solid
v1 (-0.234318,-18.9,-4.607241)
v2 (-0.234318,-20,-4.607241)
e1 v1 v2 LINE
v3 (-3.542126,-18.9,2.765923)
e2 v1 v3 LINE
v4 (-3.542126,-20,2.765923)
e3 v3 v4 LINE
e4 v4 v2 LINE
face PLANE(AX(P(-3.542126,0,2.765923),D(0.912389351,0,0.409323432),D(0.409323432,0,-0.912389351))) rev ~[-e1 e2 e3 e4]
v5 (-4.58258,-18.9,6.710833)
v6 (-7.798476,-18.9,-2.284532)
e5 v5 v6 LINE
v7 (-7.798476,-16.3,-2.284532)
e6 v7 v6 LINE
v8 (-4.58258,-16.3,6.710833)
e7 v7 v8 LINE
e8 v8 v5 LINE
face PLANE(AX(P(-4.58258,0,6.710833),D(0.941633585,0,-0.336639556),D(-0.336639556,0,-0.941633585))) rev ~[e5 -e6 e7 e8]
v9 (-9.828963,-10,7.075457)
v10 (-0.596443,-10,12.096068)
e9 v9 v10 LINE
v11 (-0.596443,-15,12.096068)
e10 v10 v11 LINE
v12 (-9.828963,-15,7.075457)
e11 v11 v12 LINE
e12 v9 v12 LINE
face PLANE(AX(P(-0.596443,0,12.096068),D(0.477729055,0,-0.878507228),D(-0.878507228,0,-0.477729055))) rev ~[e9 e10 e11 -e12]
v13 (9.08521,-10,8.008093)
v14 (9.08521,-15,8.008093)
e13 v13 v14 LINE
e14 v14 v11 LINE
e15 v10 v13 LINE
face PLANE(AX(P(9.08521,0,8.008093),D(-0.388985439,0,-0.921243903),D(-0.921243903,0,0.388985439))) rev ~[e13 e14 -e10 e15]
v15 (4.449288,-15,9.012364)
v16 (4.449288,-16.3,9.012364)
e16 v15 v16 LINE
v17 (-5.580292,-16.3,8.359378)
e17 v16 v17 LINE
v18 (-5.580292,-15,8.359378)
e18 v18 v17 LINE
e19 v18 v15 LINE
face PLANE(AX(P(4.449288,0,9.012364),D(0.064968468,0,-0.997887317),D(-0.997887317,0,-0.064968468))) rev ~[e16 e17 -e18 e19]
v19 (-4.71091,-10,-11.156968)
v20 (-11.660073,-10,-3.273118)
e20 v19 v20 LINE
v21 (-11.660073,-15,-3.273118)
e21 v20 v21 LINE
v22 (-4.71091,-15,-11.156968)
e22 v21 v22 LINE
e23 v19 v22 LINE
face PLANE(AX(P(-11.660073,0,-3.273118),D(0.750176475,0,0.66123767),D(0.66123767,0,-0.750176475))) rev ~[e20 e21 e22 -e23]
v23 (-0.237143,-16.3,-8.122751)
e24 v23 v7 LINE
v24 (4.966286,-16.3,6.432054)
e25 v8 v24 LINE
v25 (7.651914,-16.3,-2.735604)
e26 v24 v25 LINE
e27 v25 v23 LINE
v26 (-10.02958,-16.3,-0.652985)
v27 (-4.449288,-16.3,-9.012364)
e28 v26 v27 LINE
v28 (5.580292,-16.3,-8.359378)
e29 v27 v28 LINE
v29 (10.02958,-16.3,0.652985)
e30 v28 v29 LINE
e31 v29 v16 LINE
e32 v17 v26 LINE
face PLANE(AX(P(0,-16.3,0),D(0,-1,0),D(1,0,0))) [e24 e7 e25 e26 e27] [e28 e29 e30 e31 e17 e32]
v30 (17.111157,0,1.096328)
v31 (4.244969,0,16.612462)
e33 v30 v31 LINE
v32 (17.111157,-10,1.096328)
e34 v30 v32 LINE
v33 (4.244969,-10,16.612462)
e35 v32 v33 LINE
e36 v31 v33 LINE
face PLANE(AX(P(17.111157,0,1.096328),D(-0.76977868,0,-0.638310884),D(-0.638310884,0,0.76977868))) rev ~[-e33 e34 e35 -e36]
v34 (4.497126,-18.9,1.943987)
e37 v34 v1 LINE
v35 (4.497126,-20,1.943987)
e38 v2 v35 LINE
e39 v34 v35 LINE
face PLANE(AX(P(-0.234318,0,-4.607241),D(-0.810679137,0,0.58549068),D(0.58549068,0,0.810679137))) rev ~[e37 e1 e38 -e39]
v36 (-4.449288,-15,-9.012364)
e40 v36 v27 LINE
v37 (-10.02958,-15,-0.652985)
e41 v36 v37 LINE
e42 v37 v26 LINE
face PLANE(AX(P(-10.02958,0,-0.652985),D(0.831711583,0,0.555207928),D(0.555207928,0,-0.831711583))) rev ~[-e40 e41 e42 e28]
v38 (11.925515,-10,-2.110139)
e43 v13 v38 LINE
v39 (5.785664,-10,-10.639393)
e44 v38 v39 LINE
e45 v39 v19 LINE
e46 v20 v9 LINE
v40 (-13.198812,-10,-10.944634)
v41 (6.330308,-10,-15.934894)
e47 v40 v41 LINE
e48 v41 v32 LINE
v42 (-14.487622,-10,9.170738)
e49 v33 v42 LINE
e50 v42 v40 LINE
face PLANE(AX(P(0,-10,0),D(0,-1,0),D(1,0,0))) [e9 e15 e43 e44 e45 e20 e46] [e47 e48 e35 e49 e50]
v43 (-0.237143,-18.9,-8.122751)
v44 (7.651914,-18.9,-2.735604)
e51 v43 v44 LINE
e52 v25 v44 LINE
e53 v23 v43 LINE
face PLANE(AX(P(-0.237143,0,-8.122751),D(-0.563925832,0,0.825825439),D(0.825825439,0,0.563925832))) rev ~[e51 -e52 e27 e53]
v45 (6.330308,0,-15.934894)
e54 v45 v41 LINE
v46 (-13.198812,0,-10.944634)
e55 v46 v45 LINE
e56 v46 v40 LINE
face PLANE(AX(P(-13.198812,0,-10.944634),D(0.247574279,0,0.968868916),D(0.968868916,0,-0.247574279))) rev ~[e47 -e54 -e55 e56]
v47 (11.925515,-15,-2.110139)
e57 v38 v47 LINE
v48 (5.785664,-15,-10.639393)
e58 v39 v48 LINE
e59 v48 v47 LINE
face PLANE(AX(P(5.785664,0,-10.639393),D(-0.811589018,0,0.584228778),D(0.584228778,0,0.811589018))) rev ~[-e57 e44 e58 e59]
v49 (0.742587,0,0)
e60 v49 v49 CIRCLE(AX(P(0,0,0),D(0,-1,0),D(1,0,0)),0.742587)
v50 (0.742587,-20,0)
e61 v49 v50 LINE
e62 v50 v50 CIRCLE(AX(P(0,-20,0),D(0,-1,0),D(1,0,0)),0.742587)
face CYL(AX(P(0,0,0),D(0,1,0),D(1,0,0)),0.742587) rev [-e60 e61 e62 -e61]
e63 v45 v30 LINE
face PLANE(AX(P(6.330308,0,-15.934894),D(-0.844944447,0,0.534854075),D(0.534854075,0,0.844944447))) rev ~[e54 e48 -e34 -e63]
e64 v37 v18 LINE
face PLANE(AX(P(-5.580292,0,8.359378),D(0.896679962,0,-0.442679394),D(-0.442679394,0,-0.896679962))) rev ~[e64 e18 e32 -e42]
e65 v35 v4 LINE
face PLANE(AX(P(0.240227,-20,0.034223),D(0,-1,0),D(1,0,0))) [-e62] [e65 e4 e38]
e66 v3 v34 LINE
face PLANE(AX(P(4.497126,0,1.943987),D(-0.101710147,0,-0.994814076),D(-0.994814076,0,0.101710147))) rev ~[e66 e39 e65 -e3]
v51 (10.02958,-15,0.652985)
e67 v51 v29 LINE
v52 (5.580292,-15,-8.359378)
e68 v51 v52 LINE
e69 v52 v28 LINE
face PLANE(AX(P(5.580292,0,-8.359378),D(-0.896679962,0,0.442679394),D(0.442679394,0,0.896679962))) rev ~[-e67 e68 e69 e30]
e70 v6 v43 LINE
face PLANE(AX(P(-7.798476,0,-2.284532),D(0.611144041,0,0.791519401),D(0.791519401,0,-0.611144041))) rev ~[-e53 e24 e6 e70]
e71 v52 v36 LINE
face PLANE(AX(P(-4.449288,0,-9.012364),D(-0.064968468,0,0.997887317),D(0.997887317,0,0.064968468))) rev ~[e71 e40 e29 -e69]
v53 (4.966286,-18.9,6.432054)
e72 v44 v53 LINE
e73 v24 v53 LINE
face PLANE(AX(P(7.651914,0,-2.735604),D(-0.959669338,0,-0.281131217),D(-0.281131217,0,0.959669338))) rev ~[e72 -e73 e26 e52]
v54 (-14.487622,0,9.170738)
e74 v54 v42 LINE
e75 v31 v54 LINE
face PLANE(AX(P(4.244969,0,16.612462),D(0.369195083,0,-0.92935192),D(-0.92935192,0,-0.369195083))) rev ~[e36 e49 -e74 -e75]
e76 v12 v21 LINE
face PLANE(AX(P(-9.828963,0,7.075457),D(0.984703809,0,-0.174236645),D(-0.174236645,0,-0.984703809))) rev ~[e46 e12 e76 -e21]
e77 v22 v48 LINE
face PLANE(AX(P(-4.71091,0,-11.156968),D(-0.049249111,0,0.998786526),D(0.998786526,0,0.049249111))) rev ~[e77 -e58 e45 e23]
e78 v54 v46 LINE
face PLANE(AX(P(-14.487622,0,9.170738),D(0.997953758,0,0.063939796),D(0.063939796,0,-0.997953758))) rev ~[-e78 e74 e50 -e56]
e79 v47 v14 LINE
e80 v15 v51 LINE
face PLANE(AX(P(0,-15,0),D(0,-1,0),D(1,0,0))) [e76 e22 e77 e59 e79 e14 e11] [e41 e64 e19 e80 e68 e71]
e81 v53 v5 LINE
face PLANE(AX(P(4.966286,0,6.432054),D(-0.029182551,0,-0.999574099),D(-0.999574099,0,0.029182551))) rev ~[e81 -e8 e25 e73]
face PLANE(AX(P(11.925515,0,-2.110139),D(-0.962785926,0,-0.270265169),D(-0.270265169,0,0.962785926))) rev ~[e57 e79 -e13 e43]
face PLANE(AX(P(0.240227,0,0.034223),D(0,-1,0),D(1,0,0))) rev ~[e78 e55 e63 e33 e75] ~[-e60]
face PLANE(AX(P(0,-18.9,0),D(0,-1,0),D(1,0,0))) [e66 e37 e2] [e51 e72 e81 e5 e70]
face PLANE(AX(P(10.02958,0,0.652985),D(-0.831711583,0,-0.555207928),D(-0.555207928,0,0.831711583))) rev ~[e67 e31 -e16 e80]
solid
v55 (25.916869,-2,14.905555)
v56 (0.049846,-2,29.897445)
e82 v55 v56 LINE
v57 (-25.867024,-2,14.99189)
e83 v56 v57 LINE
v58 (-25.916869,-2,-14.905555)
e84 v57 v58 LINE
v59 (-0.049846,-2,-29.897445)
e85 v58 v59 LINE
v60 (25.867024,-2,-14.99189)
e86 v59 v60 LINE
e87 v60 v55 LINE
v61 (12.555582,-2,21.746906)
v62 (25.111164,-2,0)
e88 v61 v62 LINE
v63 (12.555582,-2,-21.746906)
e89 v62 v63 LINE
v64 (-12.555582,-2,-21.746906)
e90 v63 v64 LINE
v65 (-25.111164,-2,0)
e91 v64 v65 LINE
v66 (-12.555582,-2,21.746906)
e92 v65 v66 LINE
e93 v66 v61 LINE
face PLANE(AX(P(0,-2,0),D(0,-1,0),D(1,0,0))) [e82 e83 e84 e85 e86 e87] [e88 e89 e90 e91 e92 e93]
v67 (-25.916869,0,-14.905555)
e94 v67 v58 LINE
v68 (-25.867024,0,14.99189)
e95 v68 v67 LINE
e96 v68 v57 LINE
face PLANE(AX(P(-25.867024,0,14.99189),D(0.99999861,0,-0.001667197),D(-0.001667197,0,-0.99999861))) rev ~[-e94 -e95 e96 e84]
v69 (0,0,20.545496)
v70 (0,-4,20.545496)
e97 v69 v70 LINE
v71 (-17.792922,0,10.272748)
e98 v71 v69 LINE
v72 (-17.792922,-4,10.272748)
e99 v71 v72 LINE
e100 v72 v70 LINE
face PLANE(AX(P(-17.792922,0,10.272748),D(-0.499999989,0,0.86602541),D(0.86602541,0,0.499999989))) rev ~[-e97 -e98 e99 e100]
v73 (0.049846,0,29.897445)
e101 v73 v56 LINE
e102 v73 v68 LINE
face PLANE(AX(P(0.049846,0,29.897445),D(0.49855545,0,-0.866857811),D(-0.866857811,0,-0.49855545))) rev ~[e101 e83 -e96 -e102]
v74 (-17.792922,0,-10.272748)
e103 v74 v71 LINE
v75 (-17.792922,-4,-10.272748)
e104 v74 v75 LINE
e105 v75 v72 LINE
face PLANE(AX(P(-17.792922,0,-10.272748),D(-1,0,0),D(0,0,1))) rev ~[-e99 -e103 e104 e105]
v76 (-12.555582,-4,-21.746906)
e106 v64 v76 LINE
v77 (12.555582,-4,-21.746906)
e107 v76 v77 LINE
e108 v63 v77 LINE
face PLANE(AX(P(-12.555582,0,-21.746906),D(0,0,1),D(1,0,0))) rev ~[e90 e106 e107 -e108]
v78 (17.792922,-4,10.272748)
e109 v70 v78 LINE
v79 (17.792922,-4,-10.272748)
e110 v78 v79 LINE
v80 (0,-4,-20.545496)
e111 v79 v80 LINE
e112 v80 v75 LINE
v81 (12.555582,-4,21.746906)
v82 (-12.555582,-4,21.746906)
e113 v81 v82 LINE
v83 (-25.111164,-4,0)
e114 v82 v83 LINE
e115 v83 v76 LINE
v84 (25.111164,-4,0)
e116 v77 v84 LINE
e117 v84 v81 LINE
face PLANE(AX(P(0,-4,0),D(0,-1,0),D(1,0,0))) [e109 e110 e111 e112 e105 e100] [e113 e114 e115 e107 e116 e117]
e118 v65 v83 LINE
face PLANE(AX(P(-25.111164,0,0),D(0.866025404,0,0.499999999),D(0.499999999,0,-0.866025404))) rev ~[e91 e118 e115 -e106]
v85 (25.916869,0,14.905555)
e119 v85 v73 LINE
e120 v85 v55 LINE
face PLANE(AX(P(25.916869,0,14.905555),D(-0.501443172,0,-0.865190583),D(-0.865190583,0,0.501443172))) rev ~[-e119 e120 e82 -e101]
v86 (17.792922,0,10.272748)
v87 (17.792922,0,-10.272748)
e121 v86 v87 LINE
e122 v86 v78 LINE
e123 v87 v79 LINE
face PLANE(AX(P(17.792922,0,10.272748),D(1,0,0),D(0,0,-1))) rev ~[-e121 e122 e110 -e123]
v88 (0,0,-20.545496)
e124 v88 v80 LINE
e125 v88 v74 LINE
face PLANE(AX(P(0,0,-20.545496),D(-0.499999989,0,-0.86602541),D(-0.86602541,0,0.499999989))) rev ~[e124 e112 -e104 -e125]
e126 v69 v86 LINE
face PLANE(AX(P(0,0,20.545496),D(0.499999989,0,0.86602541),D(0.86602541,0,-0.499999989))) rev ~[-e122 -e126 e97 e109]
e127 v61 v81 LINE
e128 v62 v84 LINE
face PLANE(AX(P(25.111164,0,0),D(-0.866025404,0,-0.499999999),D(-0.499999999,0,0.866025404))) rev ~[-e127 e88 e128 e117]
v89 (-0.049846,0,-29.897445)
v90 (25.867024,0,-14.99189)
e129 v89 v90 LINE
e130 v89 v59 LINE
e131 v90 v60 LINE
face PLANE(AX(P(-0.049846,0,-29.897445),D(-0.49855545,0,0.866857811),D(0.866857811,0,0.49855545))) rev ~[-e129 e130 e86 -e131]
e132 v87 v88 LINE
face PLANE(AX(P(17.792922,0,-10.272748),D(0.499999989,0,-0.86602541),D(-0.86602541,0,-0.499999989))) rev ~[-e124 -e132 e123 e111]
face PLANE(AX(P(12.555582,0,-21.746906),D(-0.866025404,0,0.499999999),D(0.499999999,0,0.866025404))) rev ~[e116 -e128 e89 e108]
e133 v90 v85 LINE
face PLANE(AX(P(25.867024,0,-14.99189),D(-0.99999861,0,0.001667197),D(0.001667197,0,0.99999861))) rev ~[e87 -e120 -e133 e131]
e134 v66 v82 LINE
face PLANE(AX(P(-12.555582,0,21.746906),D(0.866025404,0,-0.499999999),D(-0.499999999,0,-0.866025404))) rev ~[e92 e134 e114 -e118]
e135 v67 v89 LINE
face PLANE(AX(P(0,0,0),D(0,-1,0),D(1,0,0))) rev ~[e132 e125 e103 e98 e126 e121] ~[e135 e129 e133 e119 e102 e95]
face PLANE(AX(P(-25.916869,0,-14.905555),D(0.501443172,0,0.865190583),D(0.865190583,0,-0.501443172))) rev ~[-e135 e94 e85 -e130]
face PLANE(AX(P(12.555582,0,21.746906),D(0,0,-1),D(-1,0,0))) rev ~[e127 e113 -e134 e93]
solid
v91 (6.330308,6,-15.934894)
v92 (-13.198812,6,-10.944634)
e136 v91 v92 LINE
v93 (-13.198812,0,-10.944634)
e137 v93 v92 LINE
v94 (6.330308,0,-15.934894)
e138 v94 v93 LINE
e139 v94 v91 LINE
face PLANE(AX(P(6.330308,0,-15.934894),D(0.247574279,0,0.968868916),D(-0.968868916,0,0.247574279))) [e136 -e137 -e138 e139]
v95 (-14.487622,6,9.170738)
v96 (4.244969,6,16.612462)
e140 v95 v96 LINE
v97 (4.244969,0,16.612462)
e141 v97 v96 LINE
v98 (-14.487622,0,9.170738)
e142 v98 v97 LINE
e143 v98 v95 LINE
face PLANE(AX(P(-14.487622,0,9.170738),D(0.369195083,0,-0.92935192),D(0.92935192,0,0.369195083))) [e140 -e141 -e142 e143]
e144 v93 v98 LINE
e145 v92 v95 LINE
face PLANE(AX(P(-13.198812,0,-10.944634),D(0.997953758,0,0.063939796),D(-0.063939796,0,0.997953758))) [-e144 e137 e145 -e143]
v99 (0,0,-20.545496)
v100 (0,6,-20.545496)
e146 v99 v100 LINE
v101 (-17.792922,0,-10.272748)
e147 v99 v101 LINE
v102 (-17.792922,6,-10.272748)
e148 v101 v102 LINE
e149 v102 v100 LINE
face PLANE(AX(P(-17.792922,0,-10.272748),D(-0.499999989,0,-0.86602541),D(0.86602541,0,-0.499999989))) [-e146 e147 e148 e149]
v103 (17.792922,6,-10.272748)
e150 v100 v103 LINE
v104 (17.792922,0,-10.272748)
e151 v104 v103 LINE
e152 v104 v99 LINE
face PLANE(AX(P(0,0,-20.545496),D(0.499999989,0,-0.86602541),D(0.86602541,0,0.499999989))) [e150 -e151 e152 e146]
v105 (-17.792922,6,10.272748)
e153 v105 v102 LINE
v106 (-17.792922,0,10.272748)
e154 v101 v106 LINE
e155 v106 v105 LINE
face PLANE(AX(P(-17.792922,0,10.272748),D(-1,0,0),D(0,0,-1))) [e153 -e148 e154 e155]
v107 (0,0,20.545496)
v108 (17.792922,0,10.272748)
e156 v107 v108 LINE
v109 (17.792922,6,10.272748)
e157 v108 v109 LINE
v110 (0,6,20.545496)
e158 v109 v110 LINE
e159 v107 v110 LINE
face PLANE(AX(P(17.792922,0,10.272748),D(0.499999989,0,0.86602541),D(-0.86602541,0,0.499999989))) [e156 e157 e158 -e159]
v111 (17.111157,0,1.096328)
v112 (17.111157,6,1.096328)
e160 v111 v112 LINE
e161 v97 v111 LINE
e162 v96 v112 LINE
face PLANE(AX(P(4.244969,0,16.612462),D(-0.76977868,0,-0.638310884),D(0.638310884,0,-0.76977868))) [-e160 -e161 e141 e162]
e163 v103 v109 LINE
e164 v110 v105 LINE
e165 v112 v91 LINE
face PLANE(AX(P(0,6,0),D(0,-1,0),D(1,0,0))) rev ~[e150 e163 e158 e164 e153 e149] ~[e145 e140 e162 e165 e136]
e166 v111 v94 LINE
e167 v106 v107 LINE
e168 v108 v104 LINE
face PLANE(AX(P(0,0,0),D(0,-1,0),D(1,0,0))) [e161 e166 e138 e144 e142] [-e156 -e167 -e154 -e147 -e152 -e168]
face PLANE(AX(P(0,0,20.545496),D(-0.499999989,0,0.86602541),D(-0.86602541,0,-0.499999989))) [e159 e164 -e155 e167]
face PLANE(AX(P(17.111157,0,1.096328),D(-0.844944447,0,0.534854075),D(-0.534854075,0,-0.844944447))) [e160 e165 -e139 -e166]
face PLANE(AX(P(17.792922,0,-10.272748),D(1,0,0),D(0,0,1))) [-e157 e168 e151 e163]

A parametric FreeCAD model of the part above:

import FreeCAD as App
import Part
import Sketcher
from FreeCAD import Vector
Q = App.Units.Quantity

doc = App.newDocument("Part")
body = doc.addObject("PartDesign::Body", "Body")
body.AllowCompound = True

# Sketch on XZ plane
sketch1 = body.newObject("Sketcher::SketchObject", "Sketch")
sketch1.AttachmentSupport = (doc.getObject("XZ_Plane"), [""])
sketch1.MapMode = "FlatFace"
sketch1.addGeometry(Part.LineSegment(Vector(-13, -22, 0), Vector(13, -22, 0)), False)
sketch1.addGeometry(Part.LineSegment(Vector(13, -22, 0), Vector(25, 0, 0)), False)
sketch1.addGeometry(Part.LineSegment(Vector(25, 0, 0), Vector(13, 22, 0)), False)
sketch1.addGeometry(Part.LineSegment(Vector(13, 22, 0), Vector(-13, 22, 0)), False)
sketch1.addGeometry(Part.LineSegment(Vector(-13, 22, 0), Vector(-25, 0, 0)), False)
sketch1.addGeometry(Part.LineSegment(Vector(-25, 0, 0), Vector(-13, -22, 0)), False)
sketch1.addGeometry(Part.LineSegment(Vector(-18, 10, 0), Vector(0, 21, 0)), False)
sketch1.addGeometry(Part.LineSegment(Vector(0, 21, 0), Vector(18, 10, 0)), False)
sketch1.addGeometry(Part.LineSegment(Vector(18, 10, 0), Vector(18, -10, 0)), False)
sketch1.addGeometry(Part.LineSegment(Vector(18, -10, 0), Vector(0, -21, 0)), False)
sketch1.addGeometry(Part.LineSegment(Vector(0, -21, 0), Vector(-18, -10, 0)), False)
sketch1.addGeometry(Part.LineSegment(Vector(-18, -10, 0), Vector(-18, 10, 0)), False)
sketch1.addConstraint(Sketcher.Constraint("Coincident", 0, 2, 1, 1))
sketch1.addConstraint(Sketcher.Constraint("Coincident", 1, 2, 2, 1))
sketch1.addConstraint(Sketcher.Constraint("Coincident", 2, 2, 3, 1))
sketch1.addConstraint(Sketcher.Constraint("Coincident", 3, 2, 4, 1))
sketch1.addConstraint(Sketcher.Constraint("Coincident", 4, 2, 5, 1))
sketch1.addConstraint(Sketcher.Constraint("Coincident", 5, 2, 0, 1))
sketch1.addConstraint(Sketcher.Constraint("Coincident", 6, 2, 7, 1))
sketch1.addConstraint(Sketcher.Constraint("Coincident", 7, 2, 8, 1))
sketch1.addConstraint(Sketcher.Constraint("Coincident", 8, 2, 9, 1))
sketch1.addConstraint(Sketcher.Constraint("Coincident", 9, 2, 10, 1))
sketch1.addConstraint(Sketcher.Constraint("Coincident", 10, 2, 11, 1))
sketch1.addConstraint(Sketcher.Constraint("Coincident", 11, 2, 6, 1))
sketch1.addConstraint(Sketcher.Constraint("Horizontal", 0))
sketch1.addConstraint(Sketcher.Constraint("Horizontal", 3))
sketch1.addConstraint(Sketcher.Constraint("Vertical", 8))
sketch1.addConstraint(Sketcher.Constraint("Vertical", 11))
sketch1.addConstraint(Sketcher.Constraint("Symmetric", 0, 2, 3, 2, -1, 1))
sketch1.addConstraint(Sketcher.Constraint("Symmetric", 1, 2, 4, 2, -1, 1))
sketch1.addConstraint(Sketcher.Constraint("Symmetric", 6, 2, 9, 2, -1, 1))
sketch1.addConstraint(Sketcher.Constraint("Symmetric", 7, 2, 10, 2, -1, 1))
sketch1.addConstraint(Sketcher.Constraint("PointOnObject", 1, 2, -1))
sketch1.addConstraint(Sketcher.Constraint("PointOnObject", 6, 2, -2))
sketch1.addConstraint(Sketcher.Constraint("Parallel", 2, 5))
sketch1.addConstraint(Sketcher.Constraint("Perpendicular", 5, 6))
sketch1.addConstraint(Sketcher.Constraint("Perpendicular", 4, 7))
sketch1.addConstraint(Sketcher.Constraint("Parallel", 6, 9))
sketch1.addConstraint(Sketcher.Constraint("Horizontal", 8, 2, 10, 2))
sketch1.addConstraint(Sketcher.Constraint("Angle", 1, Q("60 deg")))
sketch1.addConstraint(Sketcher.Constraint("DistanceY", 0, 2, 6, 2, Q("42.292402 mm")))
sketch1.addConstraint(Sketcher.Constraint("DistanceX", 0, 1, 0, 2, Q("25.111164 mm")))
sketch1.addConstraint(Sketcher.Constraint("DistanceY", 8, 2, 8, 1, Q("20.545496 mm")))
sketch1.addConstraint(Sketcher.Constraint("DistanceX", 0, 2, 1, 2, Q("12.555582 mm")))
pad1 = body.newObject("PartDesign::Pad", "Pad")
pad1.Profile = sketch1
pad1.Length = 4

# Sketch on XZ plane
sketch2 = body.newObject("Sketcher::SketchObject", "Sketch001")
sketch2.AttachmentSupport = (doc.getObject("XZ_Plane"), [""])
sketch2.MapMode = "FlatFace"
sketch2.addGeometry(Part.LineSegment(Vector(0, -30, 0), Vector(26, -15, 0)), False)
sketch2.addGeometry(Part.LineSegment(Vector(26, -15, 0), Vector(26, 15, 0)), False)
sketch2.addGeometry(Part.LineSegment(Vector(26, 15, 0), Vector(0, 30, 0)), False)
sketch2.addGeometry(Part.LineSegment(Vector(0, 30, 0), Vector(-26, 15, 0)), False)
sketch2.addGeometry(Part.LineSegment(Vector(-26, 15, 0), Vector(-26, -15, 0)), False)
sketch2.addGeometry(Part.LineSegment(Vector(-26, -15, 0), Vector(0, -30, 0)), False)
sketch2.addGeometry(Part.LineSegment(Vector(13, 22, 0), Vector(25, 0, 0)), False)
sketch2.addGeometry(Part.LineSegment(Vector(25, 0, 0), Vector(13, -22, 0)), False)
sketch2.addGeometry(Part.LineSegment(Vector(13, -22, 0), Vector(-13, -22, 0)), False)
sketch2.addGeometry(Part.LineSegment(Vector(-13, -22, 0), Vector(-25, 0, 0)), False)
sketch2.addGeometry(Part.LineSegment(Vector(-25, 0, 0), Vector(-13, 22, 0)), False)
sketch2.addGeometry(Part.LineSegment(Vector(-13, 22, 0), Vector(13, 22, 0)), False)
sketch2.addConstraint(Sketcher.Constraint("Coincident", 0, 2, 1, 1))
sketch2.addConstraint(Sketcher.Constraint("Coincident", 1, 2, 2, 1))
sketch2.addConstraint(Sketcher.Constraint("Coincident", 2, 2, 3, 1))
sketch2.addConstraint(Sketcher.Constraint("Coincident", 3, 2, 4, 1))
sketch2.addConstraint(Sketcher.Constraint("Coincident", 4, 2, 5, 1))
sketch2.addConstraint(Sketcher.Constraint("Coincident", 5, 2, 0, 1))
sketch2.addConstraint(Sketcher.Constraint("Coincident", 6, 2, 7, 1))
sketch2.addConstraint(Sketcher.Constraint("Coincident", 7, 2, 8, 1))
sketch2.addConstraint(Sketcher.Constraint("Coincident", 8, 2, 9, 1))
sketch2.addConstraint(Sketcher.Constraint("Coincident", 9, 2, 10, 1))
sketch2.addConstraint(Sketcher.Constraint("Coincident", 10, 2, 11, 1))
sketch2.addConstraint(Sketcher.Constraint("Coincident", 11, 2, 6, 1))
sketch2.addConstraint(Sketcher.Constraint("Horizontal", 8))
sketch2.addConstraint(Sketcher.Constraint("Horizontal", 11))
sketch2.addConstraint(Sketcher.Constraint("Symmetric", 0, 2, 3, 2, -1, 1))
sketch2.addConstraint(Sketcher.Constraint("Symmetric", 1, 2, 4, 2, -1, 1))
sketch2.addConstraint(Sketcher.Constraint("Symmetric", 2, 2, 5, 2, -1, 1))
sketch2.addConstraint(Sketcher.Constraint("Symmetric", 6, 2, 9, 2, -1, 1))
sketch2.addConstraint(Sketcher.Constraint("Symmetric", 7, 2, 10, 2, -1, 1))
sketch2.addConstraint(Sketcher.Constraint("PointOnObject", 6, 2, -1))
sketch2.addConstraint(Sketcher.Constraint("Parallel", 6, 9))
sketch2.addConstraint(Sketcher.Constraint("Vertical", 8, 2, 10, 2))
sketch2.addConstraint(Sketcher.Constraint("Equal", 0, 1))
sketch2.addConstraint(Sketcher.Constraint("Equal", 1, 2))
sketch2.addConstraint(Sketcher.Constraint("Angle", 6, Q("-60 deg")))
sketch2.addConstraint(Sketcher.Constraint("DistanceY", 4, 2, 2, 2, Q("44.803 mm")))
sketch2.addConstraint(Sketcher.Constraint("DistanceX", 8, 2, 8, 1, Q("25.111164 mm")))
sketch2.addConstraint(Sketcher.Constraint("DistanceY", 0, 2, -1, 1, Q("14.99189 mm")))
sketch2.addConstraint(Sketcher.Constraint("DistanceX", -1, 1, 1, 2, Q("25.916869 mm")))
sketch2.addConstraint(Sketcher.Constraint("DistanceY", 1, 2, 2, 2, Q("14.99189 mm")))
sketch2.addConstraint(Sketcher.Constraint("DistanceX", 6, 2, 0, 2, Q("0.75586 mm")))
pad2 = body.newObject("PartDesign::Pad", "Pad001")
pad2.Profile = sketch2
pad2.Length = 2

# Sketch on XZ plane
sketch3 = body.newObject("Sketcher::SketchObject", "Sketch002")
sketch3.AttachmentSupport = (doc.getObject("XZ_Plane"), [""])
sketch3.MapMode = "FlatFace"
sketch3.addGeometry(Part.LineSegment(Vector(18, -10, 0), Vector(18, 10, 0)), False)
sketch3.addGeometry(Part.LineSegment(Vector(18, 10, 0), Vector(0, 21, 0)), False)
sketch3.addGeometry(Part.LineSegment(Vector(0, 21, 0), Vector(-18, 10, 0)), False)
sketch3.addGeometry(Part.LineSegment(Vector(-18, 10, 0), Vector(-18, -10, 0)), False)
sketch3.addGeometry(Part.LineSegment(Vector(-18, -10, 0), Vector(0, -21, 0)), False)
sketch3.addGeometry(Part.LineSegment(Vector(0, -21, 0), Vector(18, -10, 0)), False)
sketch3.addGeometry(Part.LineSegment(Vector(-14, 9, 0), Vector(4, 17, 0)), False)
sketch3.addGeometry(Part.LineSegment(Vector(4, 17, 0), Vector(17, 1, 0)), False)
sketch3.addGeometry(Part.LineSegment(Vector(17, 1, 0), Vector(6, -16, 0)), False)
sketch3.addGeometry(Part.LineSegment(Vector(6, -16, 0), Vector(-13, -11, 0)), False)
sketch3.addGeometry(Part.LineSegment(Vector(-13, -11, 0), Vector(-14, 9, 0)), False)
sketch3.addConstraint(Sketcher.Constraint("Coincident", 0, 2, 1, 1))
sketch3.addConstraint(Sketcher.Constraint("Coincident", 1, 2, 2, 1))
sketch3.addConstraint(Sketcher.Constraint("Coincident", 2, 2, 3, 1))
sketch3.addConstraint(Sketcher.Constraint("Coincident", 3, 2, 4, 1))
sketch3.addConstraint(Sketcher.Constraint("Coincident", 4, 2, 5, 1))
sketch3.addConstraint(Sketcher.Constraint("Coincident", 5, 2, 0, 1))
sketch3.addConstraint(Sketcher.Constraint("Coincident", 6, 2, 7, 1))
sketch3.addConstraint(Sketcher.Constraint("Coincident", 7, 2, 8, 1))
sketch3.addConstraint(Sketcher.Constraint("Coincident", 8, 2, 9, 1))
sketch3.addConstraint(Sketcher.Constraint("Coincident", 9, 2, 10, 1))
sketch3.addConstraint(Sketcher.Constraint("Coincident", 10, 2, 6, 1))
sketch3.addConstraint(Sketcher.Constraint("Vertical", 0))
sketch3.addConstraint(Sketcher.Constraint("Vertical", 3))
sketch3.addConstraint(Sketcher.Constraint("Symmetric", 0, 2, 3, 2, -1, 1))
sketch3.addConstraint(Sketcher.Constraint("Symmetric", 1, 2, 4, 2, -1, 1))
sketch3.addConstraint(Sketcher.Constraint("PointOnObject", 1, 2, -2))
sketch3.addConstraint(Sketcher.Constraint("Parallel", 2, 5))
sketch3.addConstraint(Sketcher.Constraint("Horizontal", 0, 2, 2, 2))
sketch3.addConstraint(Sketcher.Constraint("Equal", 6, 7))
sketch3.addConstraint(Sketcher.Constraint("Equal", 7, 8))
sketch3.addConstraint(Sketcher.Constraint("Equal", 8, 9))
sketch3.addConstraint(Sketcher.Constraint("Equal", 9, 10))
sketch3.addConstraint(Sketcher.Constraint("Angle", 1, Q("150.000001 deg")))
sketch3.addConstraint(Sketcher.Constraint("DistanceX", 2, 2, 10, 2, Q("3.3053 mm")))
sketch3.addConstraint(Sketcher.Constraint("DistanceY", 0, 1, 0, 2, Q("20.545496 mm")))
sketch3.addConstraint(Sketcher.Constraint("DistanceX", -1, 1, 6, 2, Q("4.244969 mm")))
sketch3.addConstraint(Sketcher.Constraint("DistanceX", 2, 2, 6, 2, Q("22.037891 mm")))
sketch3.addConstraint(Sketcher.Constraint("DistanceY", 5, 2, 6, 2, Q("26.88521 mm")))
sketch3.addConstraint(Sketcher.Constraint("DistanceY", 7, 2, 0, 2, Q("9.17642 mm")))
sketch3.addConstraint(Sketcher.Constraint("DistanceX", 8, 2, 7, 2, Q("10.780849 mm")))
sketch3.addConstraint(Sketcher.Constraint("DistanceY", 8, 2, 7, 2, Q("17.031222 mm")))
pad3 = body.newObject("PartDesign::Pad", "Pad002")
pad3.Profile = sketch3
pad3.Length = 6
pad3.Reversed = True
body2 = doc.addObject("PartDesign::Body", "Body001")

# Sketch on XZ plane
sketch4 = body2.newObject("Sketcher::SketchObject", "Sketch003")
sketch4.AttachmentSupport = (doc.getObject("XZ_Plane001"), [""])
sketch4.MapMode = "FlatFace"
sketch4.addGeometry(Part.LineSegment(Vector(6, -16, 0), Vector(17, 1, 0)), False)
sketch4.addGeometry(Part.LineSegment(Vector(17, 1, 0), Vector(4, 17, 0)), False)
sketch4.addGeometry(Part.LineSegment(Vector(4, 17, 0), Vector(-14, 9, 0)), False)
sketch4.addGeometry(Part.LineSegment(Vector(-14, 9, 0), Vector(-13, -11, 0)), False)
sketch4.addGeometry(Part.LineSegment(Vector(-13, -11, 0), Vector(6, -16, 0)), False)
sketch4.addGeometry(Part.LineSegment(Vector(-1, 12, 0), Vector(9, 8, 0)), False)
sketch4.addGeometry(Part.LineSegment(Vector(9, 8, 0), Vector(12, -2, 0)), False)
sketch4.addGeometry(Part.LineSegment(Vector(12, -2, 0), Vector(6, -11, 0)), False)
sketch4.addGeometry(Part.LineSegment(Vector(6, -11, 0), Vector(-5, -11, 0)), False)
sketch4.addGeometry(Part.LineSegment(Vector(-5, -11, 0), Vector(-12, -3, 0)), False)
sketch4.addGeometry(Part.LineSegment(Vector(-12, -3, 0), Vector(-10, 7, 0)), False)
sketch4.addGeometry(Part.LineSegment(Vector(-10, 7, 0), Vector(-1, 12, 0)), False)
sketch4.addConstraint(Sketcher.Constraint("Coincident", 0, 2, 1, 1))
sketch4.addConstraint(Sketcher.Constraint("Coincident", 1, 2, 2, 1))
sketch4.addConstraint(Sketcher.Constraint("Coincident", 2, 2, 3, 1))
sketch4.addConstraint(Sketcher.Constraint("Coincident", 3, 2, 4, 1))
sketch4.addConstraint(Sketcher.Constraint("Coincident", 4, 2, 0, 1))
sketch4.addConstraint(Sketcher.Constraint("Coincident", 5, 2, 6, 1))
sketch4.addConstraint(Sketcher.Constraint("Coincident", 6, 2, 7, 1))
sketch4.addConstraint(Sketcher.Constraint("Coincident", 7, 2, 8, 1))
sketch4.addConstraint(Sketcher.Constraint("Coincident", 8, 2, 9, 1))
sketch4.addConstraint(Sketcher.Constraint("Coincident", 9, 2, 10, 1))
sketch4.addConstraint(Sketcher.Constraint("Coincident", 10, 2, 11, 1))
sketch4.addConstraint(Sketcher.Constraint("Coincident", 11, 2, 5, 1))
sketch4.addConstraint(Sketcher.Constraint("Equal", 0, 1))
sketch4.addConstraint(Sketcher.Constraint("Equal", 1, 2))
sketch4.addConstraint(Sketcher.Constraint("Equal", 2, 3))
sketch4.addConstraint(Sketcher.Constraint("Equal", 3, 4))
sketch4.addConstraint(Sketcher.Constraint("Equal", 5, 6))
sketch4.addConstraint(Sketcher.Constraint("Equal", 6, 7))
sketch4.addConstraint(Sketcher.Constraint("Equal", 7, 8))
sketch4.addConstraint(Sketcher.Constraint("Equal", 8, 9))
sketch4.addConstraint(Sketcher.Constraint("Equal", 9, 10))
sketch4.addConstraint(Sketcher.Constraint("Equal", 10, 11))
sketch4.addConstraint(Sketcher.Constraint("DistanceY", 6, 2, 1, 2, Q("18.722601 mm")))
sketch4.addConstraint(Sketcher.Constraint("DistanceY", 4, 2, 7, 2, Q("5.295501 mm")))
sketch4.addConstraint(Sketcher.Constraint("DistanceX", -1, 1, 1, 2, Q("4.244969 mm")))
sketch4.addConstraint(Sketcher.Constraint("DistanceX", -1, 1, 5, 2, Q("9.08521 mm")))
sketch4.addConstraint(Sketcher.Constraint("DistanceY", 6, 2, -1, 1, Q("2.110139 mm")))
sketch4.addConstraint(Sketcher.Constraint("DistanceX", 8, 2, -1, 1, Q("4.71091 mm")))
sketch4.addConstraint(Sketcher.Constraint("DistanceY", 8, 2, -1, 1, Q("11.156968 mm")))
sketch4.addConstraint(Sketcher.Constraint("DistanceY", 9, 2, -1, 1, Q("3.273118 mm")))
sketch4.addConstraint(Sketcher.Constraint("DistanceY", -1, 1, 11, 2, Q("12.096068 mm")))
sketch4.addConstraint(Sketcher.Constraint("DistanceX", 2, 2, 1, 2, Q("18.732591 mm")))
sketch4.addConstraint(Sketcher.Constraint("DistanceX", 2, 2, 0, 2, Q("31.598779 mm")))
sketch4.addConstraint(Sketcher.Constraint("DistanceY", 0, 2, 2, 2, Q("8.07441 mm")))
sketch4.addConstraint(Sketcher.Constraint("DistanceX", 2, 2, 3, 2, Q("1.28881 mm")))
sketch4.addConstraint(Sketcher.Constraint("DistanceY", 5, 2, 1, 2, Q("8.604369 mm")))
pad4 = body2.newObject("PartDesign::Pad", "Pad003")
pad4.Profile = sketch4
pad4.Length = 10

# Sketch on XZ plane
sketch5 = body2.newObject("Sketcher::SketchObject", "Sketch004")
sketch5.AttachmentSupport = (doc.getObject("XZ_Plane001"), [""])
sketch5.MapMode = "FlatFace"
sketch5.addGeometry(Part.LineSegment(Vector(6, -11, 0), Vector(12, -2, 0)), False)
sketch5.addGeometry(Part.LineSegment(Vector(12, -2, 0), Vector(9, 8, 0)), False)
sketch5.addGeometry(Part.LineSegment(Vector(9, 8, 0), Vector(-1, 12, 0)), False)
sketch5.addGeometry(Part.LineSegment(Vector(-1, 12, 0), Vector(-10, 7, 0)), False)
sketch5.addGeometry(Part.LineSegment(Vector(-10, 7, 0), Vector(-12, -3, 0)), False)
sketch5.addGeometry(Part.LineSegment(Vector(-12, -3, 0), Vector(-5, -11, 0)), False)
sketch5.addGeometry(Part.LineSegment(Vector(-5, -11, 0), Vector(6, -11, 0)), False)
sketch5.addGeometry(Part.LineSegment(Vector(-6, 8, 0), Vector(4, 9, 0)), False)
sketch5.addGeometry(Part.LineSegment(Vector(4, 9, 0), Vector(10, 1, 0)), False)
sketch5.addGeometry(Part.LineSegment(Vector(10, 1, 0), Vector(6, -8, 0)), False)
sketch5.addGeometry(Part.LineSegment(Vector(6, -8, 0), Vector(-4, -9, 0)), False)
sketch5.addGeometry(Part.LineSegment(Vector(-4, -9, 0), Vector(-10, -1, 0)), False)
sketch5.addGeometry(Part.LineSegment(Vector(-10, -1, 0), Vector(-6, 8, 0)), False)
sketch5.addConstraint(Sketcher.Constraint("Coincident", 0, 2, 1, 1))
sketch5.addConstraint(Sketcher.Constraint("Coincident", 1, 2, 2, 1))
sketch5.addConstraint(Sketcher.Constraint("Coincident", 2, 2, 3, 1))
sketch5.addConstraint(Sketcher.Constraint("Coincident", 3, 2, 4, 1))
sketch5.addConstraint(Sketcher.Constraint("Coincident", 4, 2, 5, 1))
sketch5.addConstraint(Sketcher.Constraint("Coincident", 5, 2, 6, 1))
sketch5.addConstraint(Sketcher.Constraint("Coincident", 6, 2, 0, 1))
sketch5.addConstraint(Sketcher.Constraint("Coincident", 7, 2, 8, 1))
sketch5.addConstraint(Sketcher.Constraint("Coincident", 8, 2, 9, 1))
sketch5.addConstraint(Sketcher.Constraint("Coincident", 9, 2, 10, 1))
sketch5.addConstraint(Sketcher.Constraint("Coincident", 10, 2, 11, 1))
sketch5.addConstraint(Sketcher.Constraint("Coincident", 11, 2, 12, 1))
sketch5.addConstraint(Sketcher.Constraint("Coincident", 12, 2, 7, 1))
sketch5.addConstraint(Sketcher.Constraint("Symmetric", 7, 2, 10, 2, -1, 1))
sketch5.addConstraint(Sketcher.Constraint("Symmetric", 8, 2, 11, 2, -1, 1))
sketch5.addConstraint(Sketcher.Constraint("Symmetric", 9, 2, 12, 2, -1, 1))
sketch5.addConstraint(Sketcher.Constraint("Equal", 0, 1))
sketch5.addConstraint(Sketcher.Constraint("Equal", 1, 2))
sketch5.addConstraint(Sketcher.Constraint("Equal", 2, 3))
sketch5.addConstraint(Sketcher.Constraint("Equal", 3, 4))
sketch5.addConstraint(Sketcher.Constraint("Equal", 4, 5))
sketch5.addConstraint(Sketcher.Constraint("Equal", 5, 6))
sketch5.addConstraint(Sketcher.Constraint("Equal", 7, 8))
sketch5.addConstraint(Sketcher.Constraint("Equal", 8, 9))
sketch5.addConstraint(Sketcher.Constraint("DistanceY", 0, 2, -1, 1, Q("2.110139 mm")))
sketch5.addConstraint(Sketcher.Constraint("DistanceX", -1, 1, 1, 2, Q("9.08521 mm")))
sketch5.addConstraint(Sketcher.Constraint("DistanceY", -1, 1, 2, 2, Q("12.096068 mm")))
sketch5.addConstraint(Sketcher.Constraint("DistanceY", 4, 2, -1, 1, Q("3.273118 mm")))
sketch5.addConstraint(Sketcher.Constraint("DistanceX", 5, 2, -1, 1, Q("4.71091 mm")))
sketch5.addConstraint(Sketcher.Constraint("DistanceY", 5, 2, -1, 1, Q("11.156968 mm")))
sketch5.addConstraint(Sketcher.Constraint("DistanceX", -1, 1, 8, 2, Q("10.02958 mm")))
sketch5.addConstraint(Sketcher.Constraint("DistanceX", 2, 2, 0, 2, Q("12.521958 mm")))
sketch5.addConstraint(Sketcher.Constraint("DistanceX", 3, 2, 2, 2, Q("9.23252 mm")))
sketch5.addConstraint(Sketcher.Constraint("DistanceY", 1, 2, 7, 2, Q("1.004271 mm")))
sketch5.addConstraint(Sketcher.Constraint("DistanceX", 2, 2, 7, 2, Q("5.045731 mm")))
sketch5.addConstraint(Sketcher.Constraint("DistanceY", 8, 2, 1, 2, Q("7.355108 mm")))
pad5 = body2.newObject("PartDesign::Pad", "Pad004")
pad5.Profile = sketch5
pad5.Length = 15

# Sketch on XZ plane
sketch6 = body2.newObject("Sketcher::SketchObject", "Sketch005")
sketch6.AttachmentSupport = (doc.getObject("XZ_Plane001"), [""])
sketch6.MapMode = "FlatFace"
sketch6.addGeometry(Part.LineSegment(Vector(6, -8, 0), Vector(10, 1, 0)), False)
sketch6.addGeometry(Part.LineSegment(Vector(10, 1, 0), Vector(4, 9, 0)), False)
sketch6.addGeometry(Part.LineSegment(Vector(4, 9, 0), Vector(-6, 8, 0)), False)
sketch6.addGeometry(Part.LineSegment(Vector(-6, 8, 0), Vector(-10, -1, 0)), False)
sketch6.addGeometry(Part.LineSegment(Vector(-10, -1, 0), Vector(-4, -9, 0)), False)
sketch6.addGeometry(Part.LineSegment(Vector(-4, -9, 0), Vector(6, -8, 0)), False)
sketch6.addGeometry(Part.LineSegment(Vector(-5, 7, 0), Vector(5, 6, 0)), False)
sketch6.addGeometry(Part.LineSegment(Vector(5, 6, 0), Vector(8, -3, 0)), False)
sketch6.addGeometry(Part.LineSegment(Vector(8, -3, 0), Vector(0, -8, 0)), False)
sketch6.addGeometry(Part.LineSegment(Vector(0, -8, 0), Vector(-8, -2, 0)), False)
sketch6.addGeometry(Part.LineSegment(Vector(-8, -2, 0), Vector(-5, 7, 0)), False)
sketch6.addConstraint(Sketcher.Constraint("Coincident", 0, 2, 1, 1))
sketch6.addConstraint(Sketcher.Constraint("Coincident", 1, 2, 2, 1))
sketch6.addConstraint(Sketcher.Constraint("Coincident", 2, 2, 3, 1))
sketch6.addConstraint(Sketcher.Constraint("Coincident", 3, 2, 4, 1))
sketch6.addConstraint(Sketcher.Constraint("Coincident", 4, 2, 5, 1))
sketch6.addConstraint(Sketcher.Constraint("Coincident", 5, 2, 0, 1))
sketch6.addConstraint(Sketcher.Constraint("Coincident", 6, 2, 7, 1))
sketch6.addConstraint(Sketcher.Constraint("Coincident", 7, 2, 8, 1))
sketch6.addConstraint(Sketcher.Constraint("Coincident", 8, 2, 9, 1))
sketch6.addConstraint(Sketcher.Constraint("Coincident", 9, 2, 10, 1))
sketch6.addConstraint(Sketcher.Constraint("Coincident", 10, 2, 6, 1))
sketch6.addConstraint(Sketcher.Constraint("Symmetric", 0, 2, 3, 2, -1, 1))
sketch6.addConstraint(Sketcher.Constraint("Symmetric", 1, 2, 4, 2, -1, 1))
sketch6.addConstraint(Sketcher.Constraint("Symmetric", 2, 2, 5, 2, -1, 1))
sketch6.addConstraint(Sketcher.Constraint("Equal", 0, 1))
sketch6.addConstraint(Sketcher.Constraint("Equal", 1, 2))
sketch6.addConstraint(Sketcher.Constraint("Equal", 6, 7))
sketch6.addConstraint(Sketcher.Constraint("Equal", 7, 8))
sketch6.addConstraint(Sketcher.Constraint("Equal", 8, 9))
sketch6.addConstraint(Sketcher.Constraint("Equal", 9, 10))
sketch6.addConstraint(Sketcher.Constraint("DistanceX", 1, 2, 6, 2, Q("0.516998 mm")))
sketch6.addConstraint(Sketcher.Constraint("DistanceX", 3, 2, 10, 2, Q("5.447 mm")))
sketch6.addConstraint(Sketcher.Constraint("DistanceX", -1, 1, 0, 2, Q("10.02958 mm")))
sketch6.addConstraint(Sketcher.Constraint("DistanceY", 8, 2, -1, 1, Q("8.122751 mm")))
sketch6.addConstraint(Sketcher.Constraint("DistanceY", 9, 2, -1, 1, Q("2.284532 mm")))
sketch6.addConstraint(Sketcher.Constraint("DistanceX", 1, 2, 0, 2, Q("5.580292 mm")))
sketch6.addConstraint(Sketcher.Constraint("DistanceY", 0, 2, 1, 2, Q("8.359379 mm")))
sketch6.addConstraint(Sketcher.Constraint("DistanceX", 2, 2, 1, 2, Q("10.02958 mm")))
sketch6.addConstraint(Sketcher.Constraint("DistanceY", 6, 2, 1, 2, Q("2.58031 mm")))
sketch6.addConstraint(Sketcher.Constraint("DistanceY", 7, 2, 0, 2, Q("3.388589 mm")))
pad6 = body2.newObject("PartDesign::Pad", "Pad005")
pad6.Profile = sketch6
pad6.Length = 16.3

# Sketch on XZ plane
sketch7 = body2.newObject("Sketcher::SketchObject", "Sketch006")
sketch7.AttachmentSupport = (doc.getObject("XZ_Plane001"), [""])
sketch7.MapMode = "FlatFace"
sketch7.addGeometry(Part.LineSegment(Vector(0, -8, 0), Vector(8, -3, 0)), False)
sketch7.addGeometry(Part.LineSegment(Vector(8, -3, 0), Vector(5, 6, 0)), False)
sketch7.addGeometry(Part.LineSegment(Vector(5, 6, 0), Vector(-5, 7, 0)), False)
sketch7.addGeometry(Part.LineSegment(Vector(-5, 7, 0), Vector(-8, -2, 0)), False)
sketch7.addGeometry(Part.LineSegment(Vector(-8, -2, 0), Vector(0, -8, 0)), False)
sketch7.addGeometry(Part.LineSegment(Vector(0, -5, 0), Vector(-4, 3, 0)), False)
sketch7.addGeometry(Part.LineSegment(Vector(-4, 3, 0), Vector(4, 2, 0)), False)
sketch7.addGeometry(Part.LineSegment(Vector(4, 2, 0), Vector(0, -5, 0)), False)
sketch7.addConstraint(Sketcher.Constraint("Coincident", 0, 2, 1, 1))
sketch7.addConstraint(Sketcher.Constraint("Coincident", 1, 2, 2, 1))
sketch7.addConstraint(Sketcher.Constraint("Coincident", 2, 2, 3, 1))
sketch7.addConstraint(Sketcher.Constraint("Coincident", 3, 2, 4, 1))
sketch7.addConstraint(Sketcher.Constraint("Coincident", 4, 2, 0, 1))
sketch7.addConstraint(Sketcher.Constraint("Coincident", 5, 2, 6, 1))
sketch7.addConstraint(Sketcher.Constraint("Coincident", 6, 2, 7, 1))
sketch7.addConstraint(Sketcher.Constraint("Coincident", 7, 2, 5, 1))
sketch7.addConstraint(Sketcher.Constraint("Equal", 0, 1))
sketch7.addConstraint(Sketcher.Constraint("Equal", 1, 2))
sketch7.addConstraint(Sketcher.Constraint("Equal", 2, 3))
sketch7.addConstraint(Sketcher.Constraint("Equal", 3, 4))
sketch7.addConstraint(Sketcher.Constraint("Equal", 5, 6))
sketch7.addConstraint(Sketcher.Constraint("Equal", 6, 7))
sketch7.addConstraint(Sketcher.Constraint("Distance", 5, Q("8.08116 mm")))
sketch7.addConstraint(Sketcher.Constraint("DistanceX", 2, 2, -1, 1, Q("4.58258 mm")))
sketch7.addConstraint(Sketcher.Constraint("DistanceY", 3, 2, -1, 1, Q("2.284532 mm")))
sketch7.addConstraint(Sketcher.Constraint("DistanceY", 4, 2, -1, 1, Q("8.122751 mm")))
sketch7.addConstraint(Sketcher.Constraint("DistanceY", 7, 2, -1, 1, Q("4.607241 mm")))
sketch7.addConstraint(Sketcher.Constraint("DistanceY", 1, 2, 2, 2, Q("0.278779 mm")))
sketch7.addConstraint(Sketcher.Constraint("DistanceX", 3, 2, 0, 2, Q("15.45039 mm")))
sketch7.addConstraint(Sketcher.Constraint("DistanceY", 0, 2, 3, 2, Q("0.451072 mm")))
sketch7.addConstraint(Sketcher.Constraint("DistanceY", 5, 2, 2, 2, Q("3.94491 mm")))
sketch7.addConstraint(Sketcher.Constraint("DistanceX", 3, 2, 5, 2, Q("4.25635 mm")))
pad7 = body2.newObject("PartDesign::Pad", "Pad006")
pad7.Profile = sketch7
pad7.Length = 18.9

# Sketch on XZ plane
sketch8 = body2.newObject("Sketcher::SketchObject", "Sketch007")
sketch8.AttachmentSupport = (doc.getObject("XZ_Plane001"), [""])
sketch8.MapMode = "FlatFace"
sketch8.addGeometry(Part.LineSegment(Vector(-0.2, -4.6, 0), Vector(4.5, 1.9, 0)), False)
sketch8.addGeometry(Part.LineSegment(Vector(4.5, 1.9, 0), Vector(-3.5, 2.8, 0)), False)
sketch8.addGeometry(Part.LineSegment(Vector(-3.5, 2.8, 0), Vector(-0.2, -4.6, 0)), False)
sketch8.addGeometry(Part.Circle(Vector(0, 0, 0), Vector(0, 0, 1), 0.7), False)
sketch8.addConstraint(Sketcher.Constraint("Coincident", 0, 2, 1, 1))
sketch8.addConstraint(Sketcher.Constraint("Coincident", 1, 2, 2, 1))
sketch8.addConstraint(Sketcher.Constraint("Coincident", 2, 2, 0, 1))
sketch8.addConstraint(Sketcher.Constraint("Coincident", 3, 3, -1, 1))
sketch8.addConstraint(Sketcher.Constraint("Equal", 0, 1))
sketch8.addConstraint(Sketcher.Constraint("Equal", 1, 2))
sketch8.addConstraint(Sketcher.Constraint("Diameter", 3, Q("1.485174 mm")))
sketch8.addConstraint(Sketcher.Constraint("Distance", 0, Q("8.08116 mm")))
sketch8.addConstraint(Sketcher.Constraint("DistanceY", 2, 2, -1, 1, Q("4.607241 mm")))
sketch8.addConstraint(Sketcher.Constraint("DistanceX", 1, 2, 2, 2, Q("3.307808 mm")))
sketch8.addConstraint(Sketcher.Constraint("DistanceX", -1, 1, 0, 2, Q("4.497126 mm")))
pad8 = body2.newObject("PartDesign::Pad", "Pad007")
pad8.Profile = sketch8
pad8.Length = 20

doc.recompute()
